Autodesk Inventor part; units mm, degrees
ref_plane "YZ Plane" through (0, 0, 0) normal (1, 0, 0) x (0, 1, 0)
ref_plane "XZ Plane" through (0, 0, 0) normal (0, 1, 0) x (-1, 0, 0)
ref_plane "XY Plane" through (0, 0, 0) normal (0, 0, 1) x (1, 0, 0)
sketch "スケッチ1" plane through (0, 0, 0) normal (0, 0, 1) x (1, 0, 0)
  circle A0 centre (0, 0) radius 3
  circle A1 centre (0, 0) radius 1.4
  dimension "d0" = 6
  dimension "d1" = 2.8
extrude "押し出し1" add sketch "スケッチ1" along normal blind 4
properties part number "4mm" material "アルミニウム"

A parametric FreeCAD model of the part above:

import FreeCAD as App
import Part
import Sketcher

V = App.Vector

doc = App.newDocument("Part")
body = doc.addObject("PartDesign::Body", "Body")

# Sketch on XY plane
sketch1 = doc.addObject("Sketcher::SketchObject", "Sketch")
body.addObject(sketch1)
sketch1.AttachmentSupport = (doc.XY_Plane, [""])
sketch1.MapMode = "FlatFace"
sketch1.addGeometry([
    Part.Circle(V(0, 0, 0), V(0, 0, 1), 3),
    Part.Circle(V(0, 0, 0), V(0, 0, 1), 1.4),
], False)
sketch1.addConstraint([
    Sketcher.Constraint("Coincident", 0, 3, -1, 1),
    Sketcher.Constraint("Coincident", 1, 3, -1, 1),
    Sketcher.Constraint("Diameter", 0, 6.0),
    Sketcher.Constraint("Diameter", 1, 2.8),
])
pad1 = doc.addObject("PartDesign::Pad", "Pad")
body.addObject(pad1)
pad1.Profile = sketch1
pad1.Length = 4

doc.recompute()
